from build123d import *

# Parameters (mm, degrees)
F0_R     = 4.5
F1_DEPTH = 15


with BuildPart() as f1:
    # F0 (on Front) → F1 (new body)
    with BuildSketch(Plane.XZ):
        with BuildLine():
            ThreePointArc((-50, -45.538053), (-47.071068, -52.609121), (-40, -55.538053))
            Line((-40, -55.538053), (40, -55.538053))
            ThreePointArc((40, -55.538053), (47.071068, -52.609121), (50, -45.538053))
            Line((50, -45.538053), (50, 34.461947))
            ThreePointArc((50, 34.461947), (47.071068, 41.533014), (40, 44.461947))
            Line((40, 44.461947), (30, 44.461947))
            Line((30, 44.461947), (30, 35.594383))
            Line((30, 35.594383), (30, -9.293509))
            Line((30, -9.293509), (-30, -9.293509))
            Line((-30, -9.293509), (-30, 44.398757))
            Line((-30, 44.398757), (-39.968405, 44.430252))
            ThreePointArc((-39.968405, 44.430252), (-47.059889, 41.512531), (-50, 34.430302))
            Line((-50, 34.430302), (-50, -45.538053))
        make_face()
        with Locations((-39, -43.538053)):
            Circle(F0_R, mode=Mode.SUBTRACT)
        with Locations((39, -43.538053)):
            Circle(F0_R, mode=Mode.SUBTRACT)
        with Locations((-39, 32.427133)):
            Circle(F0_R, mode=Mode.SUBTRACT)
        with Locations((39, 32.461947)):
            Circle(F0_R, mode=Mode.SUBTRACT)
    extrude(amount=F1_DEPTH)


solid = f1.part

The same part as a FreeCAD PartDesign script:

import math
import FreeCAD as App
import Part
import Sketcher
from FreeCAD import Vector

doc = App.newDocument("Part")
body = doc.addObject("PartDesign::Body", "Body")

sketch1 = body.newObject("Sketcher::SketchObject", "Sketch")
sketch1.AttachmentSupport = (doc.getObject("XZ_Plane"), [""])
sketch1.MapMode = "FlatFace"
sketch1.addGeometry([
    Part.ArcOfCircle(Part.Circle(Vector(-40, -45.5, 0), Vector(0, 0, 1), 10), math.radians(180), math.radians(270)),
    Part.LineSegment(Vector(-40, -55.5, 0), Vector(40, -55.5, 0)),
    Part.ArcOfCircle(Part.Circle(Vector(40, -45.5, 0), Vector(0, 0, 1), 10), math.radians(-90), math.radians(0)),
    Part.LineSegment(Vector(50, -45.5, 0), Vector(50, 34.5, 0)),
    Part.ArcOfCircle(Part.Circle(Vector(40, 34.5, 0), Vector(0, 0, 1), 10), math.radians(0), math.radians(90)),
    Part.LineSegment(Vector(40, 44.5, 0), Vector(30, 44.5, 0)),
    Part.LineSegment(Vector(30, 44.5, 0), Vector(30, -9.3, 0)),
    Part.LineSegment(Vector(30, -9.3, 0), Vector(-30, -9.3, 0)),
    Part.LineSegment(Vector(-30, -9.3, 0), Vector(-30, 44.4, 0)),
    Part.LineSegment(Vector(-30, 44.4, 0), Vector(-40, 44.4, 0)),
    Part.ArcOfCircle(Part.Circle(Vector(-40, 34.4, 0), Vector(0, 0, 1), 10), math.radians(90), math.radians(180)),
    Part.LineSegment(Vector(-50, 34.4, 0), Vector(-50, -45.5, 0)),
    Part.Circle(Vector(-39, -43.5, 0), Vector(0, 0, 1), 4.5),
    Part.Circle(Vector(39, -43.5, 0), Vector(0, 0, 1), 4.5),
    Part.Circle(Vector(-39, 32.4, 0), Vector(0, 0, 1), 4.5),
    Part.Circle(Vector(39, 32.5, 0), Vector(0, 0, 1), 4.5),
], False)
sketch1.addConstraint([
    Sketcher.Constraint("Tangent", 0, 2, 1, 1),
    Sketcher.Constraint("Tangent", 1, 2, 2, 1),
    Sketcher.Constraint("Tangent", 2, 2, 3, 1),
    Sketcher.Constraint("Tangent", 3, 2, 4, 1),
    Sketcher.Constraint("Tangent", 4, 2, 5, 1),
    Sketcher.Constraint("Coincident", 5, 2, 6, 1),
    Sketcher.Constraint("Coincident", 6, 2, 7, 1),
    Sketcher.Constraint("Coincident", 7, 2, 8, 1),
    Sketcher.Constraint("Coincident", 8, 2, 9, 1),
    Sketcher.Constraint("Tangent", 9, 2, 10, 1),
    Sketcher.Constraint("Tangent", 10, 2, 11, 1),
    Sketcher.Constraint("Tangent", 11, 2, 0, 1),
    Sketcher.Constraint("Horizontal", 1),
    Sketcher.Constraint("Vertical", 3),
    Sketcher.Constraint("Horizontal", 5),
    Sketcher.Constraint("Vertical", 6),
    Sketcher.Constraint("Horizontal", 7),
    Sketcher.Constraint("Vertical", 8),
    Sketcher.Constraint("Vertical", 11),
    Sketcher.Constraint("Equal", 0, 2),
    Sketcher.Constraint("Equal", 2, 4),
    Sketcher.Constraint("Equal", 4, 10),
    Sketcher.Constraint("Equal", 12, 13),
    Sketcher.Constraint("Equal", 13, 14),
    Sketcher.Constraint("Equal", 14, 15),
    Sketcher.Constraint("Symmetric", 12, 3, 13, 3, -2),
    Sketcher.Constraint("Vertical", 12, 3, 14, 3),
    Sketcher.Constraint("Vertical", 13, 3, 15, 3),
    Sketcher.Constraint("Equal", 1, 3),
    Sketcher.Constraint("Diameter", 12, 9.0),
    Sketcher.Constraint("Radius", 0, 9.999999),
    Sketcher.Constraint("DistanceX", 1, 1, 1, 2, 80.0),
    Sketcher.Constraint("DistanceX", 5, 2, 5, 1, 10.0),
    Sketcher.Constraint("DistanceX", 7, 2, 7, 1, 60.0),
    Sketcher.Constraint("DistanceX", 0, 3, -1, 1, 40.000001),
    Sketcher.Constraint("DistanceX", 12, 3, -1, 1, 39.0),
    Sketcher.Constraint("DistanceY", 0, 3, 12, 3, 2.000001),
    Sketcher.Constraint("DistanceY", 15, 3, 4, 3, 1.999999),
    Sketcher.Constraint("DistanceY", -1, 1, 10, 2, 34.430302),
    Sketcher.Constraint("DistanceY", 6, 2, 6, 1, 53.755456),
    Sketcher.Constraint("DistanceY", 8, 1, 8, 2, 53.692266),
    Sketcher.Constraint("DistanceY", 11, 2, 11, 1, 79.968355),
    Sketcher.Constraint("DistanceY", 14, 3, 10, 3, 2.003169),
])
pad1 = body.newObject("PartDesign::Pad", "Pad")
pad1.Profile = sketch1
pad1.Length = 15

doc.recompute()
